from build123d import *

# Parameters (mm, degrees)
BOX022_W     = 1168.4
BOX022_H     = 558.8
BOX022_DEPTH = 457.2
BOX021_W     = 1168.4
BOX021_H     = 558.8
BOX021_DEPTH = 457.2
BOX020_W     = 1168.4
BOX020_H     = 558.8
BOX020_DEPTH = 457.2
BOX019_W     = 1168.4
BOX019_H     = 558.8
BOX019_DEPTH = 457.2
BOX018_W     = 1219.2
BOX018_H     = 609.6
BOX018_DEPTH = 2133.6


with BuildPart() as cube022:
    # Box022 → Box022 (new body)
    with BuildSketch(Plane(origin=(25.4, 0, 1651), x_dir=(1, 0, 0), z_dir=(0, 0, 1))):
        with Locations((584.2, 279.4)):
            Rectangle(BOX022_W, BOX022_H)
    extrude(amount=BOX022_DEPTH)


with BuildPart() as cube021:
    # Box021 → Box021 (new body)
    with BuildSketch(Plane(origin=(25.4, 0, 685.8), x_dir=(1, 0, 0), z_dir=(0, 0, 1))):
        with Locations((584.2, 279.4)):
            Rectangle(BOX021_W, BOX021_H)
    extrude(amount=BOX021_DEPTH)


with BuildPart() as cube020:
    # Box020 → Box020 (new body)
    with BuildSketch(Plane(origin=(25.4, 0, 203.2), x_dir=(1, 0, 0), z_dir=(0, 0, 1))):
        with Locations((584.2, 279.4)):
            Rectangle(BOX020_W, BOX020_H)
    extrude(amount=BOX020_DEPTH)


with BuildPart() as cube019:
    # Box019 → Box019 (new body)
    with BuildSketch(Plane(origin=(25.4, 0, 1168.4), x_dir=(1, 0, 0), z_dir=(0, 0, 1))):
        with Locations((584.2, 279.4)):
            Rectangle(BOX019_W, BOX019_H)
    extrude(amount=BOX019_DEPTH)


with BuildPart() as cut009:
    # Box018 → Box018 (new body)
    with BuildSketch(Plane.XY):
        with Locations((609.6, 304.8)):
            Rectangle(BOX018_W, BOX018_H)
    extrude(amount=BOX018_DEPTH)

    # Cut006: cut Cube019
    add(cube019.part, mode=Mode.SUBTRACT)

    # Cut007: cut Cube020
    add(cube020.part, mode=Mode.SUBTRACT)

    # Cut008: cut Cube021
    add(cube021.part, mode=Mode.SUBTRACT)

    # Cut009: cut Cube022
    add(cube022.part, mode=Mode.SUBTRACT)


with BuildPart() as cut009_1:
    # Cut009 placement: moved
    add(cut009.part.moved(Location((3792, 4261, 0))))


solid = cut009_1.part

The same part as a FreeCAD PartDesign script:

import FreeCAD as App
import Part
import Sketcher

V = App.Vector
Q = App.Units.Quantity

doc = App.newDocument("Part")
body = doc.addObject("PartDesign::Body", "Body")

# Sketch on XY plane
sketch1 = body.newObject("Sketcher::SketchObject", "Sketch")
sketch1.AttachmentSupport = (doc.getObject("XY_Plane"), [""])
sketch1.MapMode = "FlatFace"
sketch1.AttachmentOffset = App.Placement(V(0, 0, 65 * 25.4), App.Rotation())
sketch1.addGeometry([
    Part.LineSegment(V(25, 559, 0), V(25, 0, 0)),
    Part.LineSegment(V(25, 0, 0), V(1194, 0, 0)),
    Part.LineSegment(V(1194, 0, 0), V(1194, 559, 0)),
    Part.LineSegment(V(1194, 559, 0), V(25, 559, 0)),
], False)
sketch1.addConstraint([
    Sketcher.Constraint("Coincident", 0, 2, 1, 1),
    Sketcher.Constraint("Coincident", 1, 2, 2, 1),
    Sketcher.Constraint("Coincident", 2, 2, 3, 1),
    Sketcher.Constraint("Coincident", 3, 2, 0, 1),
    Sketcher.Constraint("Vertical", 0),
    Sketcher.Constraint("Horizontal", 1),
    Sketcher.Constraint("Vertical", 2),
    Sketcher.Constraint("Horizontal", 3),
    Sketcher.Constraint("PointOnObject", 0, 2, -1),
    Sketcher.Constraint("DistanceX", 1, 1, 1, 2, Q("46 in")),
    Sketcher.Constraint("DistanceY", 0, 2, 0, 1, Q("22 in")),
    Sketcher.Constraint("DistanceX", -1, 1, 0, 2, Q("1 in")),
])
pad1 = body.newObject("PartDesign::Pad", "Pad")
pad1.Profile = sketch1
pad1.Length = Q("18 in")
body2 = doc.addObject("PartDesign::Body", "Body001")

# Sketch on XY plane
sketch2 = body2.newObject("Sketcher::SketchObject", "Sketch001")
sketch2.AttachmentSupport = (doc.getObject("XY_Plane001"), [""])
sketch2.MapMode = "FlatFace"
sketch2.AttachmentOffset = App.Placement(V(0, 0, 27 * 25.4), App.Rotation())
sketch2.addGeometry([
    Part.LineSegment(V(25, 559, 0), V(25, 0, 0)),
    Part.LineSegment(V(25, 0, 0), V(1194, 0, 0)),
    Part.LineSegment(V(1194, 0, 0), V(1194, 559, 0)),
    Part.LineSegment(V(1194, 559, 0), V(25, 559, 0)),
], False)
sketch2.addConstraint([
    Sketcher.Constraint("Coincident", 0, 2, 1, 1),
    Sketcher.Constraint("Coincident", 1, 2, 2, 1),
    Sketcher.Constraint("Coincident", 2, 2, 3, 1),
    Sketcher.Constraint("Coincident", 3, 2, 0, 1),
    Sketcher.Constraint("Vertical", 0),
    Sketcher.Constraint("Horizontal", 1),
    Sketcher.Constraint("Vertical", 2),
    Sketcher.Constraint("Horizontal", 3),
    Sketcher.Constraint("PointOnObject", 0, 2, -1),
    Sketcher.Constraint("DistanceX", 1, 1, 1, 2, Q("46 in")),
    Sketcher.Constraint("DistanceY", 0, 2, 0, 1, Q("22 in")),
    Sketcher.Constraint("DistanceX", -1, 1, 0, 2, Q("1 in")),
])
pad2 = body2.newObject("PartDesign::Pad", "Pad001")
pad2.Profile = sketch2
pad2.Length = Q("18 in")
body3 = doc.addObject("PartDesign::Body", "Body002")

# Sketch on XY plane
sketch3 = body3.newObject("Sketcher::SketchObject", "Sketch002")
sketch3.AttachmentSupport = (doc.getObject("XY_Plane002"), [""])
sketch3.MapMode = "FlatFace"
sketch3.AttachmentOffset = App.Placement(V(0, 0, 8 * 25.4), App.Rotation())
sketch3.addGeometry([
    Part.LineSegment(V(25, 559, 0), V(25, 0, 0)),
    Part.LineSegment(V(25, 0, 0), V(1194, 0, 0)),
    Part.LineSegment(V(1194, 0, 0), V(1194, 559, 0)),
    Part.LineSegment(V(1194, 559, 0), V(25, 559, 0)),
], False)
sketch3.addConstraint([
    Sketcher.Constraint("Coincident", 0, 2, 1, 1),
    Sketcher.Constraint("Coincident", 1, 2, 2, 1),
    Sketcher.Constraint("Coincident", 2, 2, 3, 1),
    Sketcher.Constraint("Coincident", 3, 2, 0, 1),
    Sketcher.Constraint("Vertical", 0),
    Sketcher.Constraint("Horizontal", 1),
    Sketcher.Constraint("Vertical", 2),
    Sketcher.Constraint("Horizontal", 3),
    Sketcher.Constraint("PointOnObject", 0, 2, -1),
    Sketcher.Constraint("DistanceX", 1, 1, 1, 2, Q("46 in")),
    Sketcher.Constraint("DistanceY", 0, 2, 0, 1, Q("22 in")),
    Sketcher.Constraint("DistanceX", -1, 1, 0, 2, Q("1 in")),
])
pad3 = body3.newObject("PartDesign::Pad", "Pad002")
pad3.Profile = sketch3
pad3.Length = Q("18 in")
body4 = doc.addObject("PartDesign::Body", "Body003")

# Sketch on XY plane
sketch4 = body4.newObject("Sketcher::SketchObject", "Sketch003")
sketch4.AttachmentSupport = (doc.getObject("XY_Plane003"), [""])
sketch4.MapMode = "FlatFace"
sketch4.AttachmentOffset = App.Placement(V(0, 0, 46 * 25.4), App.Rotation())
sketch4.addGeometry([
    Part.LineSegment(V(25, 559, 0), V(25, 0, 0)),
    Part.LineSegment(V(25, 0, 0), V(1194, 0, 0)),
    Part.LineSegment(V(1194, 0, 0), V(1194, 559, 0)),
    Part.LineSegment(V(1194, 559, 0), V(25, 559, 0)),
], False)
sketch4.addConstraint([
    Sketcher.Constraint("Coincident", 0, 2, 1, 1),
    Sketcher.Constraint("Coincident", 1, 2, 2, 1),
    Sketcher.Constraint("Coincident", 2, 2, 3, 1),
    Sketcher.Constraint("Coincident", 3, 2, 0, 1),
    Sketcher.Constraint("Vertical", 0),
    Sketcher.Constraint("Horizontal", 1),
    Sketcher.Constraint("Vertical", 2),
    Sketcher.Constraint("Horizontal", 3),
    Sketcher.Constraint("PointOnObject", 0, 2, -1),
    Sketcher.Constraint("DistanceX", 1, 1, 1, 2, Q("46 in")),
    Sketcher.Constraint("DistanceY", 0, 2, 0, 1, Q("22 in")),
    Sketcher.Constraint("DistanceX", -1, 1, 0, 2, Q("1 in")),
])
pad4 = body4.newObject("PartDesign::Pad", "Pad003")
pad4.Profile = sketch4
pad4.Length = Q("18 in")
body5 = doc.addObject("PartDesign::Body", "Body004")

# Sketch on XY plane
sketch5 = body5.newObject("Sketcher::SketchObject", "Sketch004")
sketch5.AttachmentSupport = (doc.getObject("XY_Plane004"), [""])
sketch5.MapMode = "FlatFace"
sketch5.addGeometry([
    Part.LineSegment(V(0, 610, 0), V(0, 0, 0)),
    Part.LineSegment(V(0, 0, 0), V(1219, 0, 0)),
    Part.LineSegment(V(1219, 0, 0), V(1219, 610, 0)),
    Part.LineSegment(V(1219, 610, 0), V(0, 610, 0)),
], False)
sketch5.addConstraint([
    Sketcher.Constraint("Coincident", 0, 2, 1, 1),
    Sketcher.Constraint("Coincident", 1, 2, 2, 1),
    Sketcher.Constraint("Coincident", 2, 2, 3, 1),
    Sketcher.Constraint("Coincident", 3, 2, 0, 1),
    Sketcher.Constraint("Vertical", 0),
    Sketcher.Constraint("Horizontal", 1),
    Sketcher.Constraint("Vertical", 2),
    Sketcher.Constraint("Horizontal", 3),
    Sketcher.Constraint("Coincident", 0, 2, -1, 1),
    Sketcher.Constraint("DistanceX", 1, 1, 1, 2, Q("48 in")),
    Sketcher.Constraint("DistanceY", 0, 2, 0, 1, Q("24 in")),
])
pad5 = body5.newObject("PartDesign::Pad", "Pad004")
pad5.Profile = sketch5
pad5.Length = Q("84 in")
doc.recompute()

boolean = body5.newObject("PartDesign::Boolean", "Boolean")
boolean.Type = "Cut"
boolean.addObjects([body4])
doc.recompute()

boolean2 = body5.newObject("PartDesign::Boolean", "Boolean001")
boolean2.Type = "Cut"
boolean2.addObjects([body3])
doc.recompute()

boolean3 = body5.newObject("PartDesign::Boolean", "Boolean002")
boolean3.Type = "Cut"
boolean3.addObjects([body2])
doc.recompute()

boolean4 = body5.newObject("PartDesign::Boolean", "Boolean003")
boolean4.Type = "Cut"
boolean4.addObjects([body])
body6 = doc.addObject("PartDesign::Body", "Body005")
doc.recompute()

body5.Placement = App.Placement(V(3792, 4261, 0), App.Rotation(V(0, 0, 1), 0))
boolean5 = body6.newObject("PartDesign::Boolean", "Boolean004")
boolean5.Type = "Fuse"
boolean5.addObjects([body5])

doc.recompute()
